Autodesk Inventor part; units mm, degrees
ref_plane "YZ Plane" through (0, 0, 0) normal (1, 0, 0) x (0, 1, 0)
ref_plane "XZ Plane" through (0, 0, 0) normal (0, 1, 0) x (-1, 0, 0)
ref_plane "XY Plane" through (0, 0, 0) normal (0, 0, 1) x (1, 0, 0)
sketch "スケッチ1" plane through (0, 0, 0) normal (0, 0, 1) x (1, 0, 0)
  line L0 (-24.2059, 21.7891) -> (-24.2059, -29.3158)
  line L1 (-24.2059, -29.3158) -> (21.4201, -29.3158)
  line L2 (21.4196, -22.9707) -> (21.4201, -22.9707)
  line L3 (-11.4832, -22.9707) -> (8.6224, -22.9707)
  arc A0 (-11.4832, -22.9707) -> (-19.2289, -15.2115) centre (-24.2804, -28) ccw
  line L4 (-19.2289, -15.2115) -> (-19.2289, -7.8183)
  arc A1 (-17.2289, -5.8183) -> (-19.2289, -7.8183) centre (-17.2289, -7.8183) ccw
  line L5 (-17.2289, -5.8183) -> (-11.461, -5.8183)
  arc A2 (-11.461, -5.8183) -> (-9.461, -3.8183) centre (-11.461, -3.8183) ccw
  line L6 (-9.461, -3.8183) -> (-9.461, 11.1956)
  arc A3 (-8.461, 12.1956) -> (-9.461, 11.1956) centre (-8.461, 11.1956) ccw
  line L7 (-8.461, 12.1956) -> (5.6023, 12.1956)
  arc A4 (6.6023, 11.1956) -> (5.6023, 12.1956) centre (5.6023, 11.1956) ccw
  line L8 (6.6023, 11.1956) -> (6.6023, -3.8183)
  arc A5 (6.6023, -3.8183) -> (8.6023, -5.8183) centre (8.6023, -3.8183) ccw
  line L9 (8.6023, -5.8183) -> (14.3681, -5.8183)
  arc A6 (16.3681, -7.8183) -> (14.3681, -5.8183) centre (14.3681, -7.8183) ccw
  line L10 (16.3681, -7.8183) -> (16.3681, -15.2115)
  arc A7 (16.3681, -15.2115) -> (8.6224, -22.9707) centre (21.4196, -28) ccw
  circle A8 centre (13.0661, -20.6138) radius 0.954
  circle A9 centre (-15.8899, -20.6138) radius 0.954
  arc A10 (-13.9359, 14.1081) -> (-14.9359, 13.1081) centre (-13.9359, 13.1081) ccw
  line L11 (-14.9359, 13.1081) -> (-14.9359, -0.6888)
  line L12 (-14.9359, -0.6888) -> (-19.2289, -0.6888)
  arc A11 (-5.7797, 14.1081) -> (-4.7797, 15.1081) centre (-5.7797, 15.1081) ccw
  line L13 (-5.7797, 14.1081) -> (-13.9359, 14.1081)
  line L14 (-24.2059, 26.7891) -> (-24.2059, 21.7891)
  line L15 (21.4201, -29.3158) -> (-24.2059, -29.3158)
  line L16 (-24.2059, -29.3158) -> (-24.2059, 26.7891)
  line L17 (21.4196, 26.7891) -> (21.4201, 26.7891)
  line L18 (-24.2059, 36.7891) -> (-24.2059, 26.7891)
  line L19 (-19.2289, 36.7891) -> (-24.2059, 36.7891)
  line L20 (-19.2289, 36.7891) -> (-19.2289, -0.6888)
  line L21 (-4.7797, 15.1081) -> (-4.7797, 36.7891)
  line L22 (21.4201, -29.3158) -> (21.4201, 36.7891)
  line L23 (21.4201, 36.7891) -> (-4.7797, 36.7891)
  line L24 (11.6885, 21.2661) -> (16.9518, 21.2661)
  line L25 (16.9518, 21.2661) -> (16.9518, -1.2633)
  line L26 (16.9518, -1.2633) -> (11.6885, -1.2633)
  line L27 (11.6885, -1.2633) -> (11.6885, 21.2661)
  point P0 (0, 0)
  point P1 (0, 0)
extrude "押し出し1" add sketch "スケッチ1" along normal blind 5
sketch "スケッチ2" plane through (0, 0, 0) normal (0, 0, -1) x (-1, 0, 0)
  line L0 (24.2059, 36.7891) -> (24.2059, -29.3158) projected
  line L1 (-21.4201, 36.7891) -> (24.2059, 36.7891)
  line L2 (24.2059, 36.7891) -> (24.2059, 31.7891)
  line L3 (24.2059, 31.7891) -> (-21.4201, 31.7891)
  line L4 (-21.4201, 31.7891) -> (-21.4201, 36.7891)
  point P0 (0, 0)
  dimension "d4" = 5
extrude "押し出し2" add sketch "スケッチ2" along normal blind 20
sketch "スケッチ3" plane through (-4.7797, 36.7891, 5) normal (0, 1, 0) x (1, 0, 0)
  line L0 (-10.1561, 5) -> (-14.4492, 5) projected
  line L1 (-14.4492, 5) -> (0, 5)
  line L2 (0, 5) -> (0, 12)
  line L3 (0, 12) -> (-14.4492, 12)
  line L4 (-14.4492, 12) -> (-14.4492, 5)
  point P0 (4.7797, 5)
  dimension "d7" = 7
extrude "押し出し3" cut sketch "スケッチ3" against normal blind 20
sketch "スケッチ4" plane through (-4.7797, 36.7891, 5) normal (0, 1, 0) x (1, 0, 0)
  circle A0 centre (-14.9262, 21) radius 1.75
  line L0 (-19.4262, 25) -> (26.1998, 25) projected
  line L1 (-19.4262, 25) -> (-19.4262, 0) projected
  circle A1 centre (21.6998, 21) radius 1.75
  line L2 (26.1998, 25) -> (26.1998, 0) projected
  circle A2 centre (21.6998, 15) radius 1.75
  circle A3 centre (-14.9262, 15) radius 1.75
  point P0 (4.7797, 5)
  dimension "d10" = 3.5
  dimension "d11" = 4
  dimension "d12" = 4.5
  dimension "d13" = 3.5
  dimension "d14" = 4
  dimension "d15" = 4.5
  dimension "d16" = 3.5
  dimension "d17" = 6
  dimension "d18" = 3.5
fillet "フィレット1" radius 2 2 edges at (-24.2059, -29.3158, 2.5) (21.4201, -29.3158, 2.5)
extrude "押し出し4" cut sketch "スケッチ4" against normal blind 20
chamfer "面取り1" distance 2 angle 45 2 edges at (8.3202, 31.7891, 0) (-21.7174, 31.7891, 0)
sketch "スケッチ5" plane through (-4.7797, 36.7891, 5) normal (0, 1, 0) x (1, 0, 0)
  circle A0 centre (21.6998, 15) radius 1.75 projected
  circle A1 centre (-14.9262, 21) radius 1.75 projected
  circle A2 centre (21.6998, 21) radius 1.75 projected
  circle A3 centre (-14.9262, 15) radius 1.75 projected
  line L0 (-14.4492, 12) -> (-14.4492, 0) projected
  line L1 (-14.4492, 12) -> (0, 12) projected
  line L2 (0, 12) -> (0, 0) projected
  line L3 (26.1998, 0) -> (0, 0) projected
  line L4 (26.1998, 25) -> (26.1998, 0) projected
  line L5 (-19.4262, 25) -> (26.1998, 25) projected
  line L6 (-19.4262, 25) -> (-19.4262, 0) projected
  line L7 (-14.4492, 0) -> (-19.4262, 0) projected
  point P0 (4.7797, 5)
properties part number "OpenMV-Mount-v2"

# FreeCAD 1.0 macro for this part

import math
import FreeCAD as App
import Part
import Sketcher


def edges_at(feature, points):
    """Names of the edges that pass closest to the given points."""
    edges = feature.Shape.Edges
    near = lambda p: min(range(len(edges)), key=lambda i: edges[i].distToShape(Part.Vertex(*p))[0])
    return sorted({f"Edge{near(p) + 1}" for p in points})

doc = App.newDocument("Part")
body = doc.addObject("PartDesign::Body", "Body")

# Sketch on XY plane
sketch1 = doc.addObject("Sketcher::SketchObject", "Sketch")
body.addObject(sketch1)
sketch1.AttachmentSupport = (doc.XY_Plane, [""])
sketch1.MapMode = "FlatFace"
sketch1.addGeometry(Part.LineSegment(App.Vector(-24.2, 36.8, 0), App.Vector(-24.2, -29.3, 0)), False)
sketch1.addGeometry(Part.LineSegment(App.Vector(-24.2, -29.3, 0), App.Vector(21.4, -29.3, 0)), False)
sketch1.addGeometry(Part.LineSegment(App.Vector(21.4, -29.3, 0), App.Vector(21.4, 36.8, 0)), False)
sketch1.addGeometry(Part.LineSegment(App.Vector(21.4, 36.8, 0), App.Vector(-4.8, 36.8, 0)), False)
sketch1.addGeometry(Part.LineSegment(App.Vector(-4.8, 36.8, 0), App.Vector(-4.8, 15.1, 0)), False)
sketch1.addGeometry(Part.ArcOfCircle(Part.Circle(App.Vector(-5.8, 15.1, 0), App.Vector(0, 0, 1), 1), math.radians(-90), math.radians(0)), False)
sketch1.addGeometry(Part.LineSegment(App.Vector(-5.8, 14.1, 0), App.Vector(-13.9, 14.1, 0)), False)
sketch1.addGeometry(Part.ArcOfCircle(Part.Circle(App.Vector(-13.9, 13.1, 0), App.Vector(0, 0, 1), 1), math.radians(90), math.radians(180)), False)
sketch1.addGeometry(Part.LineSegment(App.Vector(-14.9, 13.1, 0), App.Vector(-14.9, -0.7, 0)), False)
sketch1.addGeometry(Part.LineSegment(App.Vector(-14.9, -0.7, 0), App.Vector(-19.2, -0.7, 0)), False)
sketch1.addGeometry(Part.LineSegment(App.Vector(-19.2, -0.7, 0), App.Vector(-19.2, 36.8, 0)), False)
sketch1.addGeometry(Part.LineSegment(App.Vector(-19.2, 36.8, 0), App.Vector(-24.2, 36.8, 0)), False)
sketch1.addGeometry(Part.Circle(App.Vector(-15.9, -20.6, 0), App.Vector(0, 0, 1), 1), False)
sketch1.addGeometry(Part.LineSegment(App.Vector(8.6, -23, 0), App.Vector(-11.5, -23, 0)), False)
sketch1.addGeometry(Part.ArcOfCircle(Part.Circle(App.Vector(-24.3, -28, 0), App.Vector(0, 0, 1), 13.7), math.radians(21), math.radians(68)), False)
sketch1.addGeometry(Part.LineSegment(App.Vector(-19.2, -15.2, 0), App.Vector(-19.2, -7.8, 0)), False)
sketch1.addGeometry(Part.ArcOfCircle(Part.Circle(App.Vector(-17.2, -7.8, 0), App.Vector(0, 0, 1), 2), math.radians(90), math.radians(180)), False)
sketch1.addGeometry(Part.LineSegment(App.Vector(-17.2, -5.8, 0), App.Vector(-11.5, -5.8, 0)), False)
sketch1.addGeometry(Part.ArcOfCircle(Part.Circle(App.Vector(-11.5, -3.8, 0), App.Vector(0, 0, 1), 2), math.radians(-90), math.radians(0)), False)
sketch1.addGeometry(Part.LineSegment(App.Vector(-9.5, -3.8, 0), App.Vector(-9.5, 11.2, 0)), False)
sketch1.addGeometry(Part.ArcOfCircle(Part.Circle(App.Vector(-8.5, 11.2, 0), App.Vector(0, 0, 1), 1), math.radians(90), math.radians(180)), False)
sketch1.addGeometry(Part.LineSegment(App.Vector(-8.5, 12.2, 0), App.Vector(5.6, 12.2, 0)), False)
sketch1.addGeometry(Part.ArcOfCircle(Part.Circle(App.Vector(5.6, 11.2, 0), App.Vector(0, 0, 1), 1), math.radians(0), math.radians(90)), False)
sketch1.addGeometry(Part.LineSegment(App.Vector(6.6, 11.2, 0), App.Vector(6.6, -3.8, 0)), False)
sketch1.addGeometry(Part.ArcOfCircle(Part.Circle(App.Vector(8.6, -3.8, 0), App.Vector(0, 0, 1), 2), math.radians(180), math.radians(270)), False)
sketch1.addGeometry(Part.LineSegment(App.Vector(8.6, -5.8, 0), App.Vector(14.4, -5.8, 0)), False)
sketch1.addGeometry(Part.ArcOfCircle(Part.Circle(App.Vector(14.4, -7.8, 0), App.Vector(0, 0, 1), 2), math.radians(0), math.radians(90)), False)
sketch1.addGeometry(Part.LineSegment(App.Vector(16.4, -7.8, 0), App.Vector(16.4, -15.2, 0)), False)
sketch1.addGeometry(Part.ArcOfCircle(Part.Circle(App.Vector(21.4, -28, 0), App.Vector(0, 0, 1), 13.8), math.radians(112), math.radians(159)), False)
sketch1.addGeometry(Part.Circle(App.Vector(13.1, -20.6, 0), App.Vector(0, 0, 1), 1), False)
sketch1.addGeometry(Part.LineSegment(App.Vector(11.7, -1.3, 0), App.Vector(11.7, 21.3, 0)), False)
sketch1.addGeometry(Part.LineSegment(App.Vector(11.7, 21.3, 0), App.Vector(17, 21.3, 0)), False)
sketch1.addGeometry(Part.LineSegment(App.Vector(17, 21.3, 0), App.Vector(17, -1.3, 0)), False)
sketch1.addGeometry(Part.LineSegment(App.Vector(17, -1.3, 0), App.Vector(11.7, -1.3, 0)), False)
sketch1.addConstraint(Sketcher.Constraint("Coincident", 0, 2, 1, 1))
sketch1.addConstraint(Sketcher.Constraint("Coincident", 1, 2, 2, 1))
sketch1.addConstraint(Sketcher.Constraint("Coincident", 2, 2, 3, 1))
sketch1.addConstraint(Sketcher.Constraint("Coincident", 3, 2, 4, 1))
sketch1.addConstraint(Sketcher.Constraint("Tangent", 4, 2, 5, 2))
sketch1.addConstraint(Sketcher.Constraint("Tangent", 5, 1, 6, 1))
sketch1.addConstraint(Sketcher.Constraint("Tangent", 6, 2, 7, 1))
sketch1.addConstraint(Sketcher.Constraint("Tangent", 7, 2, 8, 1))
sketch1.addConstraint(Sketcher.Constraint("Coincident", 8, 2, 9, 1))
sketch1.addConstraint(Sketcher.Constraint("Coincident", 9, 2, 10, 1))
sketch1.addConstraint(Sketcher.Constraint("Coincident", 10, 2, 11, 1))
sketch1.addConstraint(Sketcher.Constraint("Coincident", 11, 2, 0, 1))
sketch1.addConstraint(Sketcher.Constraint("Coincident", 13, 2, 14, 1))
sketch1.addConstraint(Sketcher.Constraint("Coincident", 14, 2, 15, 1))
sketch1.addConstraint(Sketcher.Constraint("Tangent", 15, 2, 16, 2))
sketch1.addConstraint(Sketcher.Constraint("Tangent", 16, 1, 17, 1))
sketch1.addConstraint(Sketcher.Constraint("Tangent", 17, 2, 18, 1))
sketch1.addConstraint(Sketcher.Constraint("Tangent", 18, 2, 19, 1))
sketch1.addConstraint(Sketcher.Constraint("Tangent", 19, 2, 20, 2))
sketch1.addConstraint(Sketcher.Constraint("Tangent", 20, 1, 21, 1))
sketch1.addConstraint(Sketcher.Constraint("Tangent", 21, 2, 22, 2))
sketch1.addConstraint(Sketcher.Constraint("Tangent", 22, 1, 23, 1))
sketch1.addConstraint(Sketcher.Constraint("Tangent", 23, 2, 24, 1))
sketch1.addConstraint(Sketcher.Constraint("Tangent", 24, 2, 25, 1))
sketch1.addConstraint(Sketcher.Constraint("Tangent", 25, 2, 26, 2))
sketch1.addConstraint(Sketcher.Constraint("Tangent", 26, 1, 27, 1))
sketch1.addConstraint(Sketcher.Constraint("Coincident", 27, 2, 28, 1))
sketch1.addConstraint(Sketcher.Constraint("Coincident", 28, 2, 13, 1))
sketch1.addConstraint(Sketcher.Constraint("Coincident", 30, 2, 31, 1))
sketch1.addConstraint(Sketcher.Constraint("Coincident", 31, 2, 32, 1))
sketch1.addConstraint(Sketcher.Constraint("Coincident", 32, 2, 33, 1))
sketch1.addConstraint(Sketcher.Constraint("Coincident", 33, 2, 30, 1))
sketch1.addConstraint(Sketcher.Constraint("Vertical", 0))
sketch1.addConstraint(Sketcher.Constraint("Horizontal", 1))
sketch1.addConstraint(Sketcher.Constraint("Vertical", 2))
sketch1.addConstraint(Sketcher.Constraint("Horizontal", 3))
sketch1.addConstraint(Sketcher.Constraint("Vertical", 4))
sketch1.addConstraint(Sketcher.Constraint("Horizontal", 6))
sketch1.addConstraint(Sketcher.Constraint("Vertical", 8))
sketch1.addConstraint(Sketcher.Constraint("Horizontal", 9))
sketch1.addConstraint(Sketcher.Constraint("Vertical", 10))
sketch1.addConstraint(Sketcher.Constraint("Horizontal", 11))
sketch1.addConstraint(Sketcher.Constraint("Horizontal", 13))
sketch1.addConstraint(Sketcher.Constraint("Vertical", 15))
sketch1.addConstraint(Sketcher.Constraint("Horizontal", 17))
sketch1.addConstraint(Sketcher.Constraint("Vertical", 19))
sketch1.addConstraint(Sketcher.Constraint("Horizontal", 21))
sketch1.addConstraint(Sketcher.Constraint("Vertical", 23))
sketch1.addConstraint(Sketcher.Constraint("Horizontal", 25))
sketch1.addConstraint(Sketcher.Constraint("Vertical", 27))
sketch1.addConstraint(Sketcher.Constraint("Vertical", 30))
sketch1.addConstraint(Sketcher.Constraint("Horizontal", 31))
sketch1.addConstraint(Sketcher.Constraint("Vertical", 32))
sketch1.addConstraint(Sketcher.Constraint("Horizontal", 33))
sketch1.addConstraint(Sketcher.Constraint("Equal", 5, 7))
sketch1.addConstraint(Sketcher.Constraint("Equal", 16, 18))
sketch1.addConstraint(Sketcher.Constraint("Equal", 7, 20))
sketch1.addConstraint(Sketcher.Constraint("Equal", 20, 22))
sketch1.addConstraint(Sketcher.Constraint("Equal", 18, 24))
sketch1.addConstraint(Sketcher.Constraint("Equal", 24, 26))
sketch1.addConstraint(Sketcher.Constraint("Equal", 14, 28))
sketch1.addConstraint(Sketcher.Constraint("Equal", 12, 29))
sketch1.addConstraint(Sketcher.Constraint("Horizontal", 18, 3, 24, 3))
sketch1.addConstraint(Sketcher.Constraint("Horizontal", 14, 3, 28, 3))
sketch1.addConstraint(Sketcher.Constraint("Horizontal", 12, 3, 29, 3))
sketch1.addConstraint(Sketcher.Constraint("Horizontal", 3, 2, 10, 2))
sketch1.addConstraint(Sketcher.Constraint("Horizontal", 14, 2, 27, 2))
sketch1.addConstraint(Sketcher.Constraint("Vertical", 10, 2, 14, 2))
sketch1.addConstraint(Sketcher.Constraint("Radius", 5, 1.0))
sketch1.addConstraint(Sketcher.Constraint("Radius", 16, 2.0))
sketch1.addConstraint(Sketcher.Constraint("Radius", 14, 13.75))
sketch1.addConstraint(Sketcher.Constraint("Diameter", 12, 1.908))
sketch1.addConstraint(Sketcher.Constraint("DistanceY", 14, 3, -1, 1, 28.0))
sketch1.addConstraint(Sketcher.Constraint("DistanceX", 1, 1, 1, 2, 45.626))
sketch1.addConstraint(Sketcher.Constraint("DistanceX", 9, 2, 9, 1, 4.293))
sketch1.addConstraint(Sketcher.Constraint("DistanceX", 11, 2, 11, 1, 4.977))
sketch1.addConstraint(Sketcher.Constraint("DistanceX", 17, 1, 17, 2, 5.768))
sketch1.addConstraint(Sketcher.Constraint("DistanceY", 0, 2, 0, 1, 66.105))
sketch1.addConstraint(Sketcher.Constraint("DistanceY", 4, 2, 4, 1, 21.681))
sketch1.addConstraint(Sketcher.Constraint("DistanceY", 8, 2, 8, 1, 13.797))
sketch1.addConstraint(Sketcher.Constraint("DistanceY", 19, 1, 19, 2, 15.014))
sketch1.addConstraint(Sketcher.Constraint("DistanceX", 12, 3, -1, 1, 15.89))
sketch1.addConstraint(Sketcher.Constraint("DistanceX", -1, 1, 1, 2, 21.42))
sketch1.addConstraint(Sketcher.Constraint("DistanceX", 3, 2, 3, 1, 26.1998))
sketch1.addConstraint(Sketcher.Constraint("DistanceX", 13, 2, 13, 1, 20.1056))
sketch1.addConstraint(Sketcher.Constraint("DistanceX", 21, 1, 21, 2, 14.0633))
sketch1.addConstraint(Sketcher.Constraint("DistanceX", 25, 1, 25, 2, 5.7658))
sketch1.addConstraint(Sketcher.Constraint("DistanceX", 31, 1, 31, 2, 5.2633))
sketch1.addConstraint(Sketcher.Constraint("DistanceY", 15, 1, 15, 2, 7.3932))
sketch1.addConstraint(Sketcher.Constraint("DistanceY", 30, 1, 30, 2, 22.5294))
sketch1.addConstraint(Sketcher.Constraint("DistanceY", -1, 1, 5, 3, 15.108))
sketch1.addConstraint(Sketcher.Constraint("DistanceX", -1, 1, 29, 3, 13.066))
sketch1.addConstraint(Sketcher.Constraint("DistanceY", -1, 1, 30, 2, 21.266))
sketch1.addConstraint(Sketcher.Constraint("DistanceY", 12, 3, 7, 3, 33.722))
sketch1.addConstraint(Sketcher.Constraint("DistanceY", 13, 2, 12, 3, 2.357))
sketch1.addConstraint(Sketcher.Constraint("DistanceX", -1, 1, 30, 2, 11.6885))
pad1 = doc.addObject("PartDesign::Pad", "Pad")
body.addObject(pad1)
pad1.Profile = sketch1
pad1.Length = 5

# Sketch on XY plane
sketch2 = doc.addObject("Sketcher::SketchObject", "Sketch001")
body.addObject(sketch2)
sketch2.AttachmentSupport = (doc.XY_Plane, [""])
sketch2.MapMode = "FlatFace"
sketch2.addGeometry(Part.LineSegment(App.Vector(-24.2, 31.8, 0), App.Vector(-24.2, 36.8, 0)), False)
sketch2.addGeometry(Part.LineSegment(App.Vector(-24.2, 36.8, 0), App.Vector(21.4, 36.8, 0)), False)
sketch2.addGeometry(Part.LineSegment(App.Vector(21.4, 36.8, 0), App.Vector(21.4, 31.8, 0)), False)
sketch2.addGeometry(Part.LineSegment(App.Vector(21.4, 31.8, 0), App.Vector(-24.2, 31.8, 0)), False)
sketch2.addConstraint(Sketcher.Constraint("Coincident", 0, 2, 1, 1))
sketch2.addConstraint(Sketcher.Constraint("Coincident", 1, 2, 2, 1))
sketch2.addConstraint(Sketcher.Constraint("Coincident", 2, 2, 3, 1))
sketch2.addConstraint(Sketcher.Constraint("Coincident", 3, 2, 0, 1))
sketch2.addConstraint(Sketcher.Constraint("Vertical", 0))
sketch2.addConstraint(Sketcher.Constraint("Horizontal", 1))
sketch2.addConstraint(Sketcher.Constraint("Vertical", 2))
sketch2.addConstraint(Sketcher.Constraint("Horizontal", 3))
sketch2.addConstraint(Sketcher.Constraint("DistanceY", 0, 1, 0, 2, 5.0))
sketch2.addConstraint(Sketcher.Constraint("DistanceX", 1, 1, 1, 2, 45.626))
sketch2.addConstraint(Sketcher.Constraint("DistanceX", -1, 1, 1, 2, 21.42))
sketch2.addConstraint(Sketcher.Constraint("DistanceY", -1, 1, 0, 2, 36.789))
pad2 = doc.addObject("PartDesign::Pad", "Pad001")
body.addObject(pad2)
pad2.Profile = sketch2
pad2.Length = 20
pad2.Reversed = True

# Sketch on XZ plane
sketch3 = doc.addObject("Sketcher::SketchObject", "Sketch002")
body.addObject(sketch3)
sketch3.AttachmentSupport = (doc.XZ_Plane, [""])
sketch3.MapMode = "FlatFace"
sketch3.AttachmentOffset = App.Placement(App.Vector(0, 0, -36.7891), App.Rotation())
sketch3.addGeometry(Part.LineSegment(App.Vector(-19, 0, 0), App.Vector(-5, 0, 0)), False)
sketch3.addGeometry(Part.LineSegment(App.Vector(-5, 0, 0), App.Vector(-5, -7, 0)), False)
sketch3.addGeometry(Part.LineSegment(App.Vector(-5, -7, 0), App.Vector(-19, -7, 0)), False)
sketch3.addGeometry(Part.LineSegment(App.Vector(-19, -7, 0), App.Vector(-19, 0, 0)), False)
sketch3.addConstraint(Sketcher.Constraint("Coincident", 0, 2, 1, 1))
sketch3.addConstraint(Sketcher.Constraint("Coincident", 1, 2, 2, 1))
sketch3.addConstraint(Sketcher.Constraint("Coincident", 2, 2, 3, 1))
sketch3.addConstraint(Sketcher.Constraint("Coincident", 3, 2, 0, 1))
sketch3.addConstraint(Sketcher.Constraint("Horizontal", 0))
sketch3.addConstraint(Sketcher.Constraint("Vertical", 1))
sketch3.addConstraint(Sketcher.Constraint("Horizontal", 2))
sketch3.addConstraint(Sketcher.Constraint("Vertical", 3))
sketch3.addConstraint(Sketcher.Constraint("PointOnObject", 0, 2, -1))
sketch3.addConstraint(Sketcher.Constraint("DistanceY", 1, 2, 1, 1, 7.0))
sketch3.addConstraint(Sketcher.Constraint("DistanceX", 0, 1, 0, 2, 14.4492))
sketch3.addConstraint(Sketcher.Constraint("DistanceX", 2, 2, -1, 1, 19.229))
pocket1 = doc.addObject("PartDesign::Pocket", "Pocket")
body.addObject(pocket1)
pocket1.Profile = sketch3
pocket1.Length = 20
pocket1.Reversed = True
doc.recompute()

fillet = doc.addObject("PartDesign::Fillet", "Fillet")
body.addObject(fillet)
fillet.Base = (pocket1, edges_at(pocket1, [(-24.206, -29.316, 2.5), (21.42, -29.316, 2.5)]))
fillet.Radius = 2

# Sketch on XZ plane
sketch4 = doc.addObject("Sketcher::SketchObject", "Sketch003")
body.addObject(sketch4)
sketch4.AttachmentSupport = (doc.XZ_Plane, [""])
sketch4.MapMode = "FlatFace"
sketch4.AttachmentOffset = App.Placement(App.Vector(0, 0, -36.7891), App.Rotation())
sketch4.addGeometry(Part.Circle(App.Vector(-19.7, -16, 0), App.Vector(0, 0, 1), 1.8), False)
sketch4.addGeometry(Part.Circle(App.Vector(16.9, -16, 0), App.Vector(0, 0, 1), 1.8), False)
sketch4.addGeometry(Part.Circle(App.Vector(16.9, -10, 0), App.Vector(0, 0, 1), 1.8), False)
sketch4.addGeometry(Part.Circle(App.Vector(-19.7, -10, 0), App.Vector(0, 0, 1), 1.8), False)
sketch4.addConstraint(Sketcher.Constraint("Equal", 0, 1))
sketch4.addConstraint(Sketcher.Constraint("Equal", 1, 2))
sketch4.addConstraint(Sketcher.Constraint("Equal", 2, 3))
sketch4.addConstraint(Sketcher.Constraint("Horizontal", 0, 3, 1, 3))
sketch4.addConstraint(Sketcher.Constraint("Horizontal", 2, 3, 3, 3))
sketch4.addConstraint(Sketcher.Constraint("Vertical", 1, 3, 2, 3))
sketch4.addConstraint(Sketcher.Constraint("Vertical", 0, 3, 3, 3))
sketch4.addConstraint(Sketcher.Constraint("Diameter", 0, 3.5))
sketch4.addConstraint(Sketcher.Constraint("DistanceY", 1, 3, 2, 3, 6.0))
sketch4.addConstraint(Sketcher.Constraint("DistanceY", 0, 3, -1, 1, 16.0))
sketch4.addConstraint(Sketcher.Constraint("DistanceX", -1, 1, 1, 3, 16.92))
sketch4.addConstraint(Sketcher.Constraint("DistanceX", 0, 3, -1, 1, 19.706))
pocket2 = doc.addObject("PartDesign::Pocket", "Pocket001")
body.addObject(pocket2)
pocket2.Profile = sketch4
pocket2.Length = 20
pocket2.Reversed = True
doc.recompute()

chamfer = doc.addObject("PartDesign::Chamfer", "Chamfer")
body.addObject(chamfer)
chamfer.Base = (pocket2, edges_at(pocket2, [(8.32, 31.789, 0), (-21.717, 31.789, 0)]))
chamfer.Size = 2

doc.recompute()
